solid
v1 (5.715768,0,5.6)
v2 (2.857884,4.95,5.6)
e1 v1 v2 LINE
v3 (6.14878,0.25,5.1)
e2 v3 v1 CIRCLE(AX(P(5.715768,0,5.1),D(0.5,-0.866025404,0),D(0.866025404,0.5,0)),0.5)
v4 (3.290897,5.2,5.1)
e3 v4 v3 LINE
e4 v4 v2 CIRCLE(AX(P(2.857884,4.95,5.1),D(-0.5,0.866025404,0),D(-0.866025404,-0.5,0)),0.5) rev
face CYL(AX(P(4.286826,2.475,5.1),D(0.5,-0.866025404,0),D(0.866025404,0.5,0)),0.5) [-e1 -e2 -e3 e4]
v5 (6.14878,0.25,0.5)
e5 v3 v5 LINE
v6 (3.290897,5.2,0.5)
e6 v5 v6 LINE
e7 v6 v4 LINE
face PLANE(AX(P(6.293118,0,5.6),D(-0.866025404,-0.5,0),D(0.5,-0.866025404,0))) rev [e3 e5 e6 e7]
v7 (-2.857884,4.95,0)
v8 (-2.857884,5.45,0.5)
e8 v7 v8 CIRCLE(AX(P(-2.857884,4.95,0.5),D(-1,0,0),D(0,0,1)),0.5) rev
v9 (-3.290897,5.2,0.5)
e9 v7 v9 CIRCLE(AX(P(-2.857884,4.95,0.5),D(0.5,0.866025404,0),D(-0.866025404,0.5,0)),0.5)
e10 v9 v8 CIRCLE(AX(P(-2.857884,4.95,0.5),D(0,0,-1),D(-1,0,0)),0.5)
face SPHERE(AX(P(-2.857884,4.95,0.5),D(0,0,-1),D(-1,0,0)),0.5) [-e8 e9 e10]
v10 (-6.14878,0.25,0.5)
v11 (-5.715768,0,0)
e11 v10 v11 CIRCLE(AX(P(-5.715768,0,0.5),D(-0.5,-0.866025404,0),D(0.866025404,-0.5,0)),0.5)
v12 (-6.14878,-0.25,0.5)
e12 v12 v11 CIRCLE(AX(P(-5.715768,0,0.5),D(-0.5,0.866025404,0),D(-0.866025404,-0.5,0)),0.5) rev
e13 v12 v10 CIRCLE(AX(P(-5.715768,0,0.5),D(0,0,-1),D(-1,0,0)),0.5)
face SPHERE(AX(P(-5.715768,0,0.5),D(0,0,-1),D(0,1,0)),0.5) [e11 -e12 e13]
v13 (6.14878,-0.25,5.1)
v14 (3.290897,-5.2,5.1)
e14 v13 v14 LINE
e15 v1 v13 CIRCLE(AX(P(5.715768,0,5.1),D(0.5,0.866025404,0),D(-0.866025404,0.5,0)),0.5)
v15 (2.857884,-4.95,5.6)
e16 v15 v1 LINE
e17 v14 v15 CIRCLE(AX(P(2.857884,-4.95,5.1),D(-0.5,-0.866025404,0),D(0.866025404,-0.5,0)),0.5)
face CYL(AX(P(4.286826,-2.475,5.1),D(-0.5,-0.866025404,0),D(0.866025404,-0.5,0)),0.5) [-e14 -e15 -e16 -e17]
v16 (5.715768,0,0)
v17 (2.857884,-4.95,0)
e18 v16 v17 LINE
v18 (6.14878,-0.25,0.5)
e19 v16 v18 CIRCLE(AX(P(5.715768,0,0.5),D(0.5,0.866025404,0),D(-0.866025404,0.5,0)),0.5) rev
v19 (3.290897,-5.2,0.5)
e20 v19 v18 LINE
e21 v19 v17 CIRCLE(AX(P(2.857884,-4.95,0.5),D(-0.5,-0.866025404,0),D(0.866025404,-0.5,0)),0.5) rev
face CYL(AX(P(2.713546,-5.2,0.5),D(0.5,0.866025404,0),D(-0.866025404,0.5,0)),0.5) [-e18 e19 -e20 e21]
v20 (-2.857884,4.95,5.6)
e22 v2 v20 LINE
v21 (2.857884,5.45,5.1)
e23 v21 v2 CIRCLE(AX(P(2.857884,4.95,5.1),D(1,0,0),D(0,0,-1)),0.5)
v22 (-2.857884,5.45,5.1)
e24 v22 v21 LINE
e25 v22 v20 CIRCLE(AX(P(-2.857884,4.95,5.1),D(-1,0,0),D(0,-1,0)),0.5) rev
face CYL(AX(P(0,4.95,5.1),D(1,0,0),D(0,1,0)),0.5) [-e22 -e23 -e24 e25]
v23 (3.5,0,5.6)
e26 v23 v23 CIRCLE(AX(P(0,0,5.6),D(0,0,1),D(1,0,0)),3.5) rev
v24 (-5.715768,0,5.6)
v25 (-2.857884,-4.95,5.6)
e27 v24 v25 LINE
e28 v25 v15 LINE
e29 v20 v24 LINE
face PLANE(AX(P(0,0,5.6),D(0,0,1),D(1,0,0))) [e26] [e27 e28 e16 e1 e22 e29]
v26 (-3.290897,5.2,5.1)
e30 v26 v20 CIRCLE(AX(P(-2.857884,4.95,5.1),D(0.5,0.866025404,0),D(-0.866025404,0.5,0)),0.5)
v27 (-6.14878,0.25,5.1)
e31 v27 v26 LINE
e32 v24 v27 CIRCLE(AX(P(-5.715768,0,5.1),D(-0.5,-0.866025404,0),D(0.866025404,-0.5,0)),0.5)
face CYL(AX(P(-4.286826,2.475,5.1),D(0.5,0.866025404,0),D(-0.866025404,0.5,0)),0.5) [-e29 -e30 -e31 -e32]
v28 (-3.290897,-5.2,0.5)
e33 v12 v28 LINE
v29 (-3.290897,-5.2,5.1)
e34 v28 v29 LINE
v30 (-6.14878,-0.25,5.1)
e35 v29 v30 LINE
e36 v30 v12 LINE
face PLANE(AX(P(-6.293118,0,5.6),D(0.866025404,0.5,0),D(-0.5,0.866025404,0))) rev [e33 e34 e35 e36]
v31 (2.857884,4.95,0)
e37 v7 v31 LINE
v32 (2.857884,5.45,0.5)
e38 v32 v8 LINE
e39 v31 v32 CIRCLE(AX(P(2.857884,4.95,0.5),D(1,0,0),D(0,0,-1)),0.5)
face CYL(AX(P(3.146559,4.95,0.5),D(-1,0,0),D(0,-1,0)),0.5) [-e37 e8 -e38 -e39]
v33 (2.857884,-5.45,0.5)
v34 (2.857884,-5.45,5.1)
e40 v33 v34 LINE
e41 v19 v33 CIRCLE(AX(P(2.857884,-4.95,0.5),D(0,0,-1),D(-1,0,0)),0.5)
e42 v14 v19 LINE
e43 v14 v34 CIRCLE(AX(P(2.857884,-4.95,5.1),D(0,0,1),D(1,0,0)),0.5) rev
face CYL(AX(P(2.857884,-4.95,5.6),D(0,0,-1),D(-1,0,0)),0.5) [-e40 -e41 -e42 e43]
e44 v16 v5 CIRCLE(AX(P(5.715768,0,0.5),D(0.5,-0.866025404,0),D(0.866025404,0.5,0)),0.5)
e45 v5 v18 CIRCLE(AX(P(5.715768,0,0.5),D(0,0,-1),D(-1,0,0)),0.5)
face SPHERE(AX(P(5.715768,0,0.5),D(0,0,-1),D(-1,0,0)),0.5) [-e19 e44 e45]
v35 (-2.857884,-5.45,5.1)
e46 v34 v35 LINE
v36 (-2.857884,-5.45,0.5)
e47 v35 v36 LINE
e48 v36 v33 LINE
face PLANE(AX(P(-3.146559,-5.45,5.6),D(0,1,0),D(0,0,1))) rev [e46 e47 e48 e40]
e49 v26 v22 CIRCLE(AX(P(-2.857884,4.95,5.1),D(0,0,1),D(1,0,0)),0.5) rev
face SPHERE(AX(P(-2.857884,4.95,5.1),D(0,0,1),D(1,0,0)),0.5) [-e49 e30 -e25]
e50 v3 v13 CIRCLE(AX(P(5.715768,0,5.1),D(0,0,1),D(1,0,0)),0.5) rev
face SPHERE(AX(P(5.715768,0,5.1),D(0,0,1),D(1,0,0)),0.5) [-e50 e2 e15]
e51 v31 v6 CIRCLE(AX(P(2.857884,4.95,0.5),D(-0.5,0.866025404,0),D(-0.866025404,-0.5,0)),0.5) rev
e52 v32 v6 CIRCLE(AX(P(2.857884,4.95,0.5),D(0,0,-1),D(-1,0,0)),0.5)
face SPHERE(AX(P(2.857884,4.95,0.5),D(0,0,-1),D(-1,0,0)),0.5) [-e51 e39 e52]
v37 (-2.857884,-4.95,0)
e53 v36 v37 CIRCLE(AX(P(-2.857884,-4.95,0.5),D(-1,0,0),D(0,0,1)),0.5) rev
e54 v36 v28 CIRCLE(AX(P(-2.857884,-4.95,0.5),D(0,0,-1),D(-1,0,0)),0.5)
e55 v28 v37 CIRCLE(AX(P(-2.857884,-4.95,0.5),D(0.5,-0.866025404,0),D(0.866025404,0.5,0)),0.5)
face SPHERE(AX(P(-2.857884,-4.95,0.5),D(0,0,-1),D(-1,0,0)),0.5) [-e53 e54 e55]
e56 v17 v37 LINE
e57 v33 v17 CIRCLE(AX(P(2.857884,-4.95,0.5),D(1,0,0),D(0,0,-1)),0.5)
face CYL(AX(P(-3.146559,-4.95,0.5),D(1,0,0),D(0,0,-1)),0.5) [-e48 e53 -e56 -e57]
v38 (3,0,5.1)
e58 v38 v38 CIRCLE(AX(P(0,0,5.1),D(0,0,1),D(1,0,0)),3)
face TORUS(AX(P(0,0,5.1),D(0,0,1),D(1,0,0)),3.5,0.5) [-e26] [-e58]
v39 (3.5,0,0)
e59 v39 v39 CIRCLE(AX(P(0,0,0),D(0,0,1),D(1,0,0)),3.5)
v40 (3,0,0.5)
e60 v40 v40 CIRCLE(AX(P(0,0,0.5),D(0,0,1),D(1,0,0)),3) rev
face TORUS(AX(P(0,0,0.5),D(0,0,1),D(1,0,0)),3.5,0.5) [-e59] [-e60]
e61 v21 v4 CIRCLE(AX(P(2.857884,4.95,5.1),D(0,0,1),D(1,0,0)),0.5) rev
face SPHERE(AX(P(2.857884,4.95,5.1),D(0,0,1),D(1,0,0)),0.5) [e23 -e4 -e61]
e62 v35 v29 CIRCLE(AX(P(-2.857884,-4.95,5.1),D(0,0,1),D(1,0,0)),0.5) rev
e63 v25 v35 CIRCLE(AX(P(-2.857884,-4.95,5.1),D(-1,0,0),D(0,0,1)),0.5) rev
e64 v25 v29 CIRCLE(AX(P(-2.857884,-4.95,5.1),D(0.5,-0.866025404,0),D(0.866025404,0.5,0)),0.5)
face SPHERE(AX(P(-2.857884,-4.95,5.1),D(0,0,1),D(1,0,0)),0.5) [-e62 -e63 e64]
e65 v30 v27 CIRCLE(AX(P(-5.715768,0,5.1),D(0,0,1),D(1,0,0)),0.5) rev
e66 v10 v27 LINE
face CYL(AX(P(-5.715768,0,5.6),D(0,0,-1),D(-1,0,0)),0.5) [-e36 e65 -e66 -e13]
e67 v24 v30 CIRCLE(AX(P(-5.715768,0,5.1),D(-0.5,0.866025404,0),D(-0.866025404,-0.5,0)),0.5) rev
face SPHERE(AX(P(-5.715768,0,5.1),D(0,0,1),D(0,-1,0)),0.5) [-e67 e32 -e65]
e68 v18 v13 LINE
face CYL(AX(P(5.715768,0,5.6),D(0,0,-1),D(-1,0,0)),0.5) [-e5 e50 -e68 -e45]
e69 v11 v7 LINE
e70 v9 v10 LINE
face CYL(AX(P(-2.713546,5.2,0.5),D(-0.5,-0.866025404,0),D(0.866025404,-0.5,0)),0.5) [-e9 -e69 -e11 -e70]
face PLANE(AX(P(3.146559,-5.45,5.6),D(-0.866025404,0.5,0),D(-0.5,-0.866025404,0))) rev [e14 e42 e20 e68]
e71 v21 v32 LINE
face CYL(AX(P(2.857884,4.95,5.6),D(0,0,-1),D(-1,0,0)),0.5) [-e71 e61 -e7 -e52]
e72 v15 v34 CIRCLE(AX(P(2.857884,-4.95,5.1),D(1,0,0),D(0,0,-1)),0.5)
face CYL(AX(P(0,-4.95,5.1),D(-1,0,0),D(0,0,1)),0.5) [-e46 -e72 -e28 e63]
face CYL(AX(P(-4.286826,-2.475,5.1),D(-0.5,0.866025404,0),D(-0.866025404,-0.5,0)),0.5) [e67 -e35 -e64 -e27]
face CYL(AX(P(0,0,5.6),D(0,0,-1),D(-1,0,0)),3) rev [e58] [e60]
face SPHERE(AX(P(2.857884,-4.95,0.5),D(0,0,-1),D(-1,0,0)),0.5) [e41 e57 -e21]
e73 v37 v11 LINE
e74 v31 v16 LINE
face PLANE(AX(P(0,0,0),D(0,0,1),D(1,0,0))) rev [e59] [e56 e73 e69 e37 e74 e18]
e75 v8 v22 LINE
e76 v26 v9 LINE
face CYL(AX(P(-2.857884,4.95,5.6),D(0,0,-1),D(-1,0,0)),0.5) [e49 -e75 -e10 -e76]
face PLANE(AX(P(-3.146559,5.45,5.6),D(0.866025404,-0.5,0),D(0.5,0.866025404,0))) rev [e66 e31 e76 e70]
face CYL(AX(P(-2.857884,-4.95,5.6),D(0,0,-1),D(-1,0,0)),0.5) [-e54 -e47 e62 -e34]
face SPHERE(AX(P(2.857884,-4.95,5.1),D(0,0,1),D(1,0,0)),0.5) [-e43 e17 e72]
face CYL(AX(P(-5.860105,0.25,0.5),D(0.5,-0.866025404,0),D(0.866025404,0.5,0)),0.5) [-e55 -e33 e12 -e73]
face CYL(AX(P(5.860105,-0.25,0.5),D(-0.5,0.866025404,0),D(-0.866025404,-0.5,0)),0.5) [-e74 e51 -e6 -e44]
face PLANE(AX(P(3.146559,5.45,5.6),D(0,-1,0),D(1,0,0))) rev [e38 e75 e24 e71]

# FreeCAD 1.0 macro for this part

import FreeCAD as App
import Part
import Sketcher

V = App.Vector
Q = App.Units.Quantity

doc = App.newDocument("Part")
params = doc.addObject("Spreadsheet::Sheet", "Params")
for row, (alias, value) in enumerate([
    ("sketch1_diameter", "6 mm"),
    ("pad1_length", "5.6 mm"),
    ("fillet_radius", "0.5 mm"),
], start=1):
    params.set(f"A{row}", alias)
    params.set(f"B{row}", "=" + value)
    params.setAlias(f"B{row}", alias)

body = doc.addObject("PartDesign::Body", "Body")

# Sketch on XY plane
sketch1 = doc.addObject("Sketcher::SketchObject", "Sketch")
body.addObject(sketch1)
sketch1.AttachmentSupport = (doc.XY_Plane, [""])
sketch1.MapMode = "FlatFace"
sketch1.addGeometry(Part.LineSegment(V(-6.293118, 0, 0), V(-3.146559, -5.45, 0)), False)
sketch1.addGeometry(Part.LineSegment(V(-3.146559, -5.45, 0), V(3.146559, -5.45, 0)), False)
sketch1.addGeometry(Part.LineSegment(V(3.146559, -5.45, 0), V(6.293118, 0, 0)), False)
sketch1.addGeometry(Part.LineSegment(V(6.293118, 0, 0), V(3.146559, 5.45, 0)), False)
sketch1.addGeometry(Part.LineSegment(V(3.146559, 5.45, 0), V(-3.146559, 5.45, 0)), False)
sketch1.addGeometry(Part.LineSegment(V(-3.146559, 5.45, 0), V(-6.293118, 0, 0)), False)
sketch1.addGeometry(Part.Circle(V(0, 0, 0), V(0, 0, 1), 3), False)
sketch1.addConstraint(Sketcher.Constraint("Coincident", 0, 2, 1, 1))
sketch1.addConstraint(Sketcher.Constraint("Coincident", 1, 2, 2, 1))
sketch1.addConstraint(Sketcher.Constraint("Coincident", 2, 2, 3, 1))
sketch1.addConstraint(Sketcher.Constraint("Coincident", 3, 2, 4, 1))
sketch1.addConstraint(Sketcher.Constraint("Coincident", 4, 2, 5, 1))
sketch1.addConstraint(Sketcher.Constraint("Coincident", 5, 2, 0, 1))
sketch1.addConstraint(Sketcher.Constraint("Horizontal", 1))
sketch1.addConstraint(Sketcher.Constraint("Horizontal", 4))
sketch1.addConstraint(Sketcher.Constraint("Coincident", 6, 3, -1, 1))
sketch1.addConstraint(Sketcher.Constraint("Symmetric", 0, 2, 3, 2, -1, 1))
sketch1.addConstraint(Sketcher.Constraint("Symmetric", 2, 2, 5, 2, -1, 1))
sketch1.addConstraint(Sketcher.Constraint("PointOnObject", 2, 2, -1))
sketch1.addConstraint(Sketcher.Constraint("Parallel", 2, 5))
sketch1.addConstraint(Sketcher.Constraint("Vertical", 1, 2, 3, 2))
sketch1.addConstraint(Sketcher.Constraint("Diameter", 6, Q("6 mm")))
sketch1.addConstraint(Sketcher.Constraint("Angle", 0, Q("-60 deg")))
sketch1.addConstraint(Sketcher.Constraint("DistanceY", 1, 2, 3, 2, Q("10.9 mm")))
sketch1.addConstraint(Sketcher.Constraint("DistanceX", 1, 1, 1, 2, Q("6.293118 mm")))
sketch1.setExpression("Constraints[14]", "Params.sketch1_diameter")
pad1 = doc.addObject("PartDesign::Pad", "Pad")
body.addObject(pad1)
pad1.Profile = sketch1
pad1.setExpression("Length", "Params.pad1_length")
doc.recompute()

fillet = doc.addObject("PartDesign::Fillet", "Fillet")
body.addObject(fillet)
fillet.Base = (pad1, ["Edge1"])
fillet.UseAllEdges = True
fillet.setExpression("Radius", "Params.fillet_radius")

doc.recompute()
